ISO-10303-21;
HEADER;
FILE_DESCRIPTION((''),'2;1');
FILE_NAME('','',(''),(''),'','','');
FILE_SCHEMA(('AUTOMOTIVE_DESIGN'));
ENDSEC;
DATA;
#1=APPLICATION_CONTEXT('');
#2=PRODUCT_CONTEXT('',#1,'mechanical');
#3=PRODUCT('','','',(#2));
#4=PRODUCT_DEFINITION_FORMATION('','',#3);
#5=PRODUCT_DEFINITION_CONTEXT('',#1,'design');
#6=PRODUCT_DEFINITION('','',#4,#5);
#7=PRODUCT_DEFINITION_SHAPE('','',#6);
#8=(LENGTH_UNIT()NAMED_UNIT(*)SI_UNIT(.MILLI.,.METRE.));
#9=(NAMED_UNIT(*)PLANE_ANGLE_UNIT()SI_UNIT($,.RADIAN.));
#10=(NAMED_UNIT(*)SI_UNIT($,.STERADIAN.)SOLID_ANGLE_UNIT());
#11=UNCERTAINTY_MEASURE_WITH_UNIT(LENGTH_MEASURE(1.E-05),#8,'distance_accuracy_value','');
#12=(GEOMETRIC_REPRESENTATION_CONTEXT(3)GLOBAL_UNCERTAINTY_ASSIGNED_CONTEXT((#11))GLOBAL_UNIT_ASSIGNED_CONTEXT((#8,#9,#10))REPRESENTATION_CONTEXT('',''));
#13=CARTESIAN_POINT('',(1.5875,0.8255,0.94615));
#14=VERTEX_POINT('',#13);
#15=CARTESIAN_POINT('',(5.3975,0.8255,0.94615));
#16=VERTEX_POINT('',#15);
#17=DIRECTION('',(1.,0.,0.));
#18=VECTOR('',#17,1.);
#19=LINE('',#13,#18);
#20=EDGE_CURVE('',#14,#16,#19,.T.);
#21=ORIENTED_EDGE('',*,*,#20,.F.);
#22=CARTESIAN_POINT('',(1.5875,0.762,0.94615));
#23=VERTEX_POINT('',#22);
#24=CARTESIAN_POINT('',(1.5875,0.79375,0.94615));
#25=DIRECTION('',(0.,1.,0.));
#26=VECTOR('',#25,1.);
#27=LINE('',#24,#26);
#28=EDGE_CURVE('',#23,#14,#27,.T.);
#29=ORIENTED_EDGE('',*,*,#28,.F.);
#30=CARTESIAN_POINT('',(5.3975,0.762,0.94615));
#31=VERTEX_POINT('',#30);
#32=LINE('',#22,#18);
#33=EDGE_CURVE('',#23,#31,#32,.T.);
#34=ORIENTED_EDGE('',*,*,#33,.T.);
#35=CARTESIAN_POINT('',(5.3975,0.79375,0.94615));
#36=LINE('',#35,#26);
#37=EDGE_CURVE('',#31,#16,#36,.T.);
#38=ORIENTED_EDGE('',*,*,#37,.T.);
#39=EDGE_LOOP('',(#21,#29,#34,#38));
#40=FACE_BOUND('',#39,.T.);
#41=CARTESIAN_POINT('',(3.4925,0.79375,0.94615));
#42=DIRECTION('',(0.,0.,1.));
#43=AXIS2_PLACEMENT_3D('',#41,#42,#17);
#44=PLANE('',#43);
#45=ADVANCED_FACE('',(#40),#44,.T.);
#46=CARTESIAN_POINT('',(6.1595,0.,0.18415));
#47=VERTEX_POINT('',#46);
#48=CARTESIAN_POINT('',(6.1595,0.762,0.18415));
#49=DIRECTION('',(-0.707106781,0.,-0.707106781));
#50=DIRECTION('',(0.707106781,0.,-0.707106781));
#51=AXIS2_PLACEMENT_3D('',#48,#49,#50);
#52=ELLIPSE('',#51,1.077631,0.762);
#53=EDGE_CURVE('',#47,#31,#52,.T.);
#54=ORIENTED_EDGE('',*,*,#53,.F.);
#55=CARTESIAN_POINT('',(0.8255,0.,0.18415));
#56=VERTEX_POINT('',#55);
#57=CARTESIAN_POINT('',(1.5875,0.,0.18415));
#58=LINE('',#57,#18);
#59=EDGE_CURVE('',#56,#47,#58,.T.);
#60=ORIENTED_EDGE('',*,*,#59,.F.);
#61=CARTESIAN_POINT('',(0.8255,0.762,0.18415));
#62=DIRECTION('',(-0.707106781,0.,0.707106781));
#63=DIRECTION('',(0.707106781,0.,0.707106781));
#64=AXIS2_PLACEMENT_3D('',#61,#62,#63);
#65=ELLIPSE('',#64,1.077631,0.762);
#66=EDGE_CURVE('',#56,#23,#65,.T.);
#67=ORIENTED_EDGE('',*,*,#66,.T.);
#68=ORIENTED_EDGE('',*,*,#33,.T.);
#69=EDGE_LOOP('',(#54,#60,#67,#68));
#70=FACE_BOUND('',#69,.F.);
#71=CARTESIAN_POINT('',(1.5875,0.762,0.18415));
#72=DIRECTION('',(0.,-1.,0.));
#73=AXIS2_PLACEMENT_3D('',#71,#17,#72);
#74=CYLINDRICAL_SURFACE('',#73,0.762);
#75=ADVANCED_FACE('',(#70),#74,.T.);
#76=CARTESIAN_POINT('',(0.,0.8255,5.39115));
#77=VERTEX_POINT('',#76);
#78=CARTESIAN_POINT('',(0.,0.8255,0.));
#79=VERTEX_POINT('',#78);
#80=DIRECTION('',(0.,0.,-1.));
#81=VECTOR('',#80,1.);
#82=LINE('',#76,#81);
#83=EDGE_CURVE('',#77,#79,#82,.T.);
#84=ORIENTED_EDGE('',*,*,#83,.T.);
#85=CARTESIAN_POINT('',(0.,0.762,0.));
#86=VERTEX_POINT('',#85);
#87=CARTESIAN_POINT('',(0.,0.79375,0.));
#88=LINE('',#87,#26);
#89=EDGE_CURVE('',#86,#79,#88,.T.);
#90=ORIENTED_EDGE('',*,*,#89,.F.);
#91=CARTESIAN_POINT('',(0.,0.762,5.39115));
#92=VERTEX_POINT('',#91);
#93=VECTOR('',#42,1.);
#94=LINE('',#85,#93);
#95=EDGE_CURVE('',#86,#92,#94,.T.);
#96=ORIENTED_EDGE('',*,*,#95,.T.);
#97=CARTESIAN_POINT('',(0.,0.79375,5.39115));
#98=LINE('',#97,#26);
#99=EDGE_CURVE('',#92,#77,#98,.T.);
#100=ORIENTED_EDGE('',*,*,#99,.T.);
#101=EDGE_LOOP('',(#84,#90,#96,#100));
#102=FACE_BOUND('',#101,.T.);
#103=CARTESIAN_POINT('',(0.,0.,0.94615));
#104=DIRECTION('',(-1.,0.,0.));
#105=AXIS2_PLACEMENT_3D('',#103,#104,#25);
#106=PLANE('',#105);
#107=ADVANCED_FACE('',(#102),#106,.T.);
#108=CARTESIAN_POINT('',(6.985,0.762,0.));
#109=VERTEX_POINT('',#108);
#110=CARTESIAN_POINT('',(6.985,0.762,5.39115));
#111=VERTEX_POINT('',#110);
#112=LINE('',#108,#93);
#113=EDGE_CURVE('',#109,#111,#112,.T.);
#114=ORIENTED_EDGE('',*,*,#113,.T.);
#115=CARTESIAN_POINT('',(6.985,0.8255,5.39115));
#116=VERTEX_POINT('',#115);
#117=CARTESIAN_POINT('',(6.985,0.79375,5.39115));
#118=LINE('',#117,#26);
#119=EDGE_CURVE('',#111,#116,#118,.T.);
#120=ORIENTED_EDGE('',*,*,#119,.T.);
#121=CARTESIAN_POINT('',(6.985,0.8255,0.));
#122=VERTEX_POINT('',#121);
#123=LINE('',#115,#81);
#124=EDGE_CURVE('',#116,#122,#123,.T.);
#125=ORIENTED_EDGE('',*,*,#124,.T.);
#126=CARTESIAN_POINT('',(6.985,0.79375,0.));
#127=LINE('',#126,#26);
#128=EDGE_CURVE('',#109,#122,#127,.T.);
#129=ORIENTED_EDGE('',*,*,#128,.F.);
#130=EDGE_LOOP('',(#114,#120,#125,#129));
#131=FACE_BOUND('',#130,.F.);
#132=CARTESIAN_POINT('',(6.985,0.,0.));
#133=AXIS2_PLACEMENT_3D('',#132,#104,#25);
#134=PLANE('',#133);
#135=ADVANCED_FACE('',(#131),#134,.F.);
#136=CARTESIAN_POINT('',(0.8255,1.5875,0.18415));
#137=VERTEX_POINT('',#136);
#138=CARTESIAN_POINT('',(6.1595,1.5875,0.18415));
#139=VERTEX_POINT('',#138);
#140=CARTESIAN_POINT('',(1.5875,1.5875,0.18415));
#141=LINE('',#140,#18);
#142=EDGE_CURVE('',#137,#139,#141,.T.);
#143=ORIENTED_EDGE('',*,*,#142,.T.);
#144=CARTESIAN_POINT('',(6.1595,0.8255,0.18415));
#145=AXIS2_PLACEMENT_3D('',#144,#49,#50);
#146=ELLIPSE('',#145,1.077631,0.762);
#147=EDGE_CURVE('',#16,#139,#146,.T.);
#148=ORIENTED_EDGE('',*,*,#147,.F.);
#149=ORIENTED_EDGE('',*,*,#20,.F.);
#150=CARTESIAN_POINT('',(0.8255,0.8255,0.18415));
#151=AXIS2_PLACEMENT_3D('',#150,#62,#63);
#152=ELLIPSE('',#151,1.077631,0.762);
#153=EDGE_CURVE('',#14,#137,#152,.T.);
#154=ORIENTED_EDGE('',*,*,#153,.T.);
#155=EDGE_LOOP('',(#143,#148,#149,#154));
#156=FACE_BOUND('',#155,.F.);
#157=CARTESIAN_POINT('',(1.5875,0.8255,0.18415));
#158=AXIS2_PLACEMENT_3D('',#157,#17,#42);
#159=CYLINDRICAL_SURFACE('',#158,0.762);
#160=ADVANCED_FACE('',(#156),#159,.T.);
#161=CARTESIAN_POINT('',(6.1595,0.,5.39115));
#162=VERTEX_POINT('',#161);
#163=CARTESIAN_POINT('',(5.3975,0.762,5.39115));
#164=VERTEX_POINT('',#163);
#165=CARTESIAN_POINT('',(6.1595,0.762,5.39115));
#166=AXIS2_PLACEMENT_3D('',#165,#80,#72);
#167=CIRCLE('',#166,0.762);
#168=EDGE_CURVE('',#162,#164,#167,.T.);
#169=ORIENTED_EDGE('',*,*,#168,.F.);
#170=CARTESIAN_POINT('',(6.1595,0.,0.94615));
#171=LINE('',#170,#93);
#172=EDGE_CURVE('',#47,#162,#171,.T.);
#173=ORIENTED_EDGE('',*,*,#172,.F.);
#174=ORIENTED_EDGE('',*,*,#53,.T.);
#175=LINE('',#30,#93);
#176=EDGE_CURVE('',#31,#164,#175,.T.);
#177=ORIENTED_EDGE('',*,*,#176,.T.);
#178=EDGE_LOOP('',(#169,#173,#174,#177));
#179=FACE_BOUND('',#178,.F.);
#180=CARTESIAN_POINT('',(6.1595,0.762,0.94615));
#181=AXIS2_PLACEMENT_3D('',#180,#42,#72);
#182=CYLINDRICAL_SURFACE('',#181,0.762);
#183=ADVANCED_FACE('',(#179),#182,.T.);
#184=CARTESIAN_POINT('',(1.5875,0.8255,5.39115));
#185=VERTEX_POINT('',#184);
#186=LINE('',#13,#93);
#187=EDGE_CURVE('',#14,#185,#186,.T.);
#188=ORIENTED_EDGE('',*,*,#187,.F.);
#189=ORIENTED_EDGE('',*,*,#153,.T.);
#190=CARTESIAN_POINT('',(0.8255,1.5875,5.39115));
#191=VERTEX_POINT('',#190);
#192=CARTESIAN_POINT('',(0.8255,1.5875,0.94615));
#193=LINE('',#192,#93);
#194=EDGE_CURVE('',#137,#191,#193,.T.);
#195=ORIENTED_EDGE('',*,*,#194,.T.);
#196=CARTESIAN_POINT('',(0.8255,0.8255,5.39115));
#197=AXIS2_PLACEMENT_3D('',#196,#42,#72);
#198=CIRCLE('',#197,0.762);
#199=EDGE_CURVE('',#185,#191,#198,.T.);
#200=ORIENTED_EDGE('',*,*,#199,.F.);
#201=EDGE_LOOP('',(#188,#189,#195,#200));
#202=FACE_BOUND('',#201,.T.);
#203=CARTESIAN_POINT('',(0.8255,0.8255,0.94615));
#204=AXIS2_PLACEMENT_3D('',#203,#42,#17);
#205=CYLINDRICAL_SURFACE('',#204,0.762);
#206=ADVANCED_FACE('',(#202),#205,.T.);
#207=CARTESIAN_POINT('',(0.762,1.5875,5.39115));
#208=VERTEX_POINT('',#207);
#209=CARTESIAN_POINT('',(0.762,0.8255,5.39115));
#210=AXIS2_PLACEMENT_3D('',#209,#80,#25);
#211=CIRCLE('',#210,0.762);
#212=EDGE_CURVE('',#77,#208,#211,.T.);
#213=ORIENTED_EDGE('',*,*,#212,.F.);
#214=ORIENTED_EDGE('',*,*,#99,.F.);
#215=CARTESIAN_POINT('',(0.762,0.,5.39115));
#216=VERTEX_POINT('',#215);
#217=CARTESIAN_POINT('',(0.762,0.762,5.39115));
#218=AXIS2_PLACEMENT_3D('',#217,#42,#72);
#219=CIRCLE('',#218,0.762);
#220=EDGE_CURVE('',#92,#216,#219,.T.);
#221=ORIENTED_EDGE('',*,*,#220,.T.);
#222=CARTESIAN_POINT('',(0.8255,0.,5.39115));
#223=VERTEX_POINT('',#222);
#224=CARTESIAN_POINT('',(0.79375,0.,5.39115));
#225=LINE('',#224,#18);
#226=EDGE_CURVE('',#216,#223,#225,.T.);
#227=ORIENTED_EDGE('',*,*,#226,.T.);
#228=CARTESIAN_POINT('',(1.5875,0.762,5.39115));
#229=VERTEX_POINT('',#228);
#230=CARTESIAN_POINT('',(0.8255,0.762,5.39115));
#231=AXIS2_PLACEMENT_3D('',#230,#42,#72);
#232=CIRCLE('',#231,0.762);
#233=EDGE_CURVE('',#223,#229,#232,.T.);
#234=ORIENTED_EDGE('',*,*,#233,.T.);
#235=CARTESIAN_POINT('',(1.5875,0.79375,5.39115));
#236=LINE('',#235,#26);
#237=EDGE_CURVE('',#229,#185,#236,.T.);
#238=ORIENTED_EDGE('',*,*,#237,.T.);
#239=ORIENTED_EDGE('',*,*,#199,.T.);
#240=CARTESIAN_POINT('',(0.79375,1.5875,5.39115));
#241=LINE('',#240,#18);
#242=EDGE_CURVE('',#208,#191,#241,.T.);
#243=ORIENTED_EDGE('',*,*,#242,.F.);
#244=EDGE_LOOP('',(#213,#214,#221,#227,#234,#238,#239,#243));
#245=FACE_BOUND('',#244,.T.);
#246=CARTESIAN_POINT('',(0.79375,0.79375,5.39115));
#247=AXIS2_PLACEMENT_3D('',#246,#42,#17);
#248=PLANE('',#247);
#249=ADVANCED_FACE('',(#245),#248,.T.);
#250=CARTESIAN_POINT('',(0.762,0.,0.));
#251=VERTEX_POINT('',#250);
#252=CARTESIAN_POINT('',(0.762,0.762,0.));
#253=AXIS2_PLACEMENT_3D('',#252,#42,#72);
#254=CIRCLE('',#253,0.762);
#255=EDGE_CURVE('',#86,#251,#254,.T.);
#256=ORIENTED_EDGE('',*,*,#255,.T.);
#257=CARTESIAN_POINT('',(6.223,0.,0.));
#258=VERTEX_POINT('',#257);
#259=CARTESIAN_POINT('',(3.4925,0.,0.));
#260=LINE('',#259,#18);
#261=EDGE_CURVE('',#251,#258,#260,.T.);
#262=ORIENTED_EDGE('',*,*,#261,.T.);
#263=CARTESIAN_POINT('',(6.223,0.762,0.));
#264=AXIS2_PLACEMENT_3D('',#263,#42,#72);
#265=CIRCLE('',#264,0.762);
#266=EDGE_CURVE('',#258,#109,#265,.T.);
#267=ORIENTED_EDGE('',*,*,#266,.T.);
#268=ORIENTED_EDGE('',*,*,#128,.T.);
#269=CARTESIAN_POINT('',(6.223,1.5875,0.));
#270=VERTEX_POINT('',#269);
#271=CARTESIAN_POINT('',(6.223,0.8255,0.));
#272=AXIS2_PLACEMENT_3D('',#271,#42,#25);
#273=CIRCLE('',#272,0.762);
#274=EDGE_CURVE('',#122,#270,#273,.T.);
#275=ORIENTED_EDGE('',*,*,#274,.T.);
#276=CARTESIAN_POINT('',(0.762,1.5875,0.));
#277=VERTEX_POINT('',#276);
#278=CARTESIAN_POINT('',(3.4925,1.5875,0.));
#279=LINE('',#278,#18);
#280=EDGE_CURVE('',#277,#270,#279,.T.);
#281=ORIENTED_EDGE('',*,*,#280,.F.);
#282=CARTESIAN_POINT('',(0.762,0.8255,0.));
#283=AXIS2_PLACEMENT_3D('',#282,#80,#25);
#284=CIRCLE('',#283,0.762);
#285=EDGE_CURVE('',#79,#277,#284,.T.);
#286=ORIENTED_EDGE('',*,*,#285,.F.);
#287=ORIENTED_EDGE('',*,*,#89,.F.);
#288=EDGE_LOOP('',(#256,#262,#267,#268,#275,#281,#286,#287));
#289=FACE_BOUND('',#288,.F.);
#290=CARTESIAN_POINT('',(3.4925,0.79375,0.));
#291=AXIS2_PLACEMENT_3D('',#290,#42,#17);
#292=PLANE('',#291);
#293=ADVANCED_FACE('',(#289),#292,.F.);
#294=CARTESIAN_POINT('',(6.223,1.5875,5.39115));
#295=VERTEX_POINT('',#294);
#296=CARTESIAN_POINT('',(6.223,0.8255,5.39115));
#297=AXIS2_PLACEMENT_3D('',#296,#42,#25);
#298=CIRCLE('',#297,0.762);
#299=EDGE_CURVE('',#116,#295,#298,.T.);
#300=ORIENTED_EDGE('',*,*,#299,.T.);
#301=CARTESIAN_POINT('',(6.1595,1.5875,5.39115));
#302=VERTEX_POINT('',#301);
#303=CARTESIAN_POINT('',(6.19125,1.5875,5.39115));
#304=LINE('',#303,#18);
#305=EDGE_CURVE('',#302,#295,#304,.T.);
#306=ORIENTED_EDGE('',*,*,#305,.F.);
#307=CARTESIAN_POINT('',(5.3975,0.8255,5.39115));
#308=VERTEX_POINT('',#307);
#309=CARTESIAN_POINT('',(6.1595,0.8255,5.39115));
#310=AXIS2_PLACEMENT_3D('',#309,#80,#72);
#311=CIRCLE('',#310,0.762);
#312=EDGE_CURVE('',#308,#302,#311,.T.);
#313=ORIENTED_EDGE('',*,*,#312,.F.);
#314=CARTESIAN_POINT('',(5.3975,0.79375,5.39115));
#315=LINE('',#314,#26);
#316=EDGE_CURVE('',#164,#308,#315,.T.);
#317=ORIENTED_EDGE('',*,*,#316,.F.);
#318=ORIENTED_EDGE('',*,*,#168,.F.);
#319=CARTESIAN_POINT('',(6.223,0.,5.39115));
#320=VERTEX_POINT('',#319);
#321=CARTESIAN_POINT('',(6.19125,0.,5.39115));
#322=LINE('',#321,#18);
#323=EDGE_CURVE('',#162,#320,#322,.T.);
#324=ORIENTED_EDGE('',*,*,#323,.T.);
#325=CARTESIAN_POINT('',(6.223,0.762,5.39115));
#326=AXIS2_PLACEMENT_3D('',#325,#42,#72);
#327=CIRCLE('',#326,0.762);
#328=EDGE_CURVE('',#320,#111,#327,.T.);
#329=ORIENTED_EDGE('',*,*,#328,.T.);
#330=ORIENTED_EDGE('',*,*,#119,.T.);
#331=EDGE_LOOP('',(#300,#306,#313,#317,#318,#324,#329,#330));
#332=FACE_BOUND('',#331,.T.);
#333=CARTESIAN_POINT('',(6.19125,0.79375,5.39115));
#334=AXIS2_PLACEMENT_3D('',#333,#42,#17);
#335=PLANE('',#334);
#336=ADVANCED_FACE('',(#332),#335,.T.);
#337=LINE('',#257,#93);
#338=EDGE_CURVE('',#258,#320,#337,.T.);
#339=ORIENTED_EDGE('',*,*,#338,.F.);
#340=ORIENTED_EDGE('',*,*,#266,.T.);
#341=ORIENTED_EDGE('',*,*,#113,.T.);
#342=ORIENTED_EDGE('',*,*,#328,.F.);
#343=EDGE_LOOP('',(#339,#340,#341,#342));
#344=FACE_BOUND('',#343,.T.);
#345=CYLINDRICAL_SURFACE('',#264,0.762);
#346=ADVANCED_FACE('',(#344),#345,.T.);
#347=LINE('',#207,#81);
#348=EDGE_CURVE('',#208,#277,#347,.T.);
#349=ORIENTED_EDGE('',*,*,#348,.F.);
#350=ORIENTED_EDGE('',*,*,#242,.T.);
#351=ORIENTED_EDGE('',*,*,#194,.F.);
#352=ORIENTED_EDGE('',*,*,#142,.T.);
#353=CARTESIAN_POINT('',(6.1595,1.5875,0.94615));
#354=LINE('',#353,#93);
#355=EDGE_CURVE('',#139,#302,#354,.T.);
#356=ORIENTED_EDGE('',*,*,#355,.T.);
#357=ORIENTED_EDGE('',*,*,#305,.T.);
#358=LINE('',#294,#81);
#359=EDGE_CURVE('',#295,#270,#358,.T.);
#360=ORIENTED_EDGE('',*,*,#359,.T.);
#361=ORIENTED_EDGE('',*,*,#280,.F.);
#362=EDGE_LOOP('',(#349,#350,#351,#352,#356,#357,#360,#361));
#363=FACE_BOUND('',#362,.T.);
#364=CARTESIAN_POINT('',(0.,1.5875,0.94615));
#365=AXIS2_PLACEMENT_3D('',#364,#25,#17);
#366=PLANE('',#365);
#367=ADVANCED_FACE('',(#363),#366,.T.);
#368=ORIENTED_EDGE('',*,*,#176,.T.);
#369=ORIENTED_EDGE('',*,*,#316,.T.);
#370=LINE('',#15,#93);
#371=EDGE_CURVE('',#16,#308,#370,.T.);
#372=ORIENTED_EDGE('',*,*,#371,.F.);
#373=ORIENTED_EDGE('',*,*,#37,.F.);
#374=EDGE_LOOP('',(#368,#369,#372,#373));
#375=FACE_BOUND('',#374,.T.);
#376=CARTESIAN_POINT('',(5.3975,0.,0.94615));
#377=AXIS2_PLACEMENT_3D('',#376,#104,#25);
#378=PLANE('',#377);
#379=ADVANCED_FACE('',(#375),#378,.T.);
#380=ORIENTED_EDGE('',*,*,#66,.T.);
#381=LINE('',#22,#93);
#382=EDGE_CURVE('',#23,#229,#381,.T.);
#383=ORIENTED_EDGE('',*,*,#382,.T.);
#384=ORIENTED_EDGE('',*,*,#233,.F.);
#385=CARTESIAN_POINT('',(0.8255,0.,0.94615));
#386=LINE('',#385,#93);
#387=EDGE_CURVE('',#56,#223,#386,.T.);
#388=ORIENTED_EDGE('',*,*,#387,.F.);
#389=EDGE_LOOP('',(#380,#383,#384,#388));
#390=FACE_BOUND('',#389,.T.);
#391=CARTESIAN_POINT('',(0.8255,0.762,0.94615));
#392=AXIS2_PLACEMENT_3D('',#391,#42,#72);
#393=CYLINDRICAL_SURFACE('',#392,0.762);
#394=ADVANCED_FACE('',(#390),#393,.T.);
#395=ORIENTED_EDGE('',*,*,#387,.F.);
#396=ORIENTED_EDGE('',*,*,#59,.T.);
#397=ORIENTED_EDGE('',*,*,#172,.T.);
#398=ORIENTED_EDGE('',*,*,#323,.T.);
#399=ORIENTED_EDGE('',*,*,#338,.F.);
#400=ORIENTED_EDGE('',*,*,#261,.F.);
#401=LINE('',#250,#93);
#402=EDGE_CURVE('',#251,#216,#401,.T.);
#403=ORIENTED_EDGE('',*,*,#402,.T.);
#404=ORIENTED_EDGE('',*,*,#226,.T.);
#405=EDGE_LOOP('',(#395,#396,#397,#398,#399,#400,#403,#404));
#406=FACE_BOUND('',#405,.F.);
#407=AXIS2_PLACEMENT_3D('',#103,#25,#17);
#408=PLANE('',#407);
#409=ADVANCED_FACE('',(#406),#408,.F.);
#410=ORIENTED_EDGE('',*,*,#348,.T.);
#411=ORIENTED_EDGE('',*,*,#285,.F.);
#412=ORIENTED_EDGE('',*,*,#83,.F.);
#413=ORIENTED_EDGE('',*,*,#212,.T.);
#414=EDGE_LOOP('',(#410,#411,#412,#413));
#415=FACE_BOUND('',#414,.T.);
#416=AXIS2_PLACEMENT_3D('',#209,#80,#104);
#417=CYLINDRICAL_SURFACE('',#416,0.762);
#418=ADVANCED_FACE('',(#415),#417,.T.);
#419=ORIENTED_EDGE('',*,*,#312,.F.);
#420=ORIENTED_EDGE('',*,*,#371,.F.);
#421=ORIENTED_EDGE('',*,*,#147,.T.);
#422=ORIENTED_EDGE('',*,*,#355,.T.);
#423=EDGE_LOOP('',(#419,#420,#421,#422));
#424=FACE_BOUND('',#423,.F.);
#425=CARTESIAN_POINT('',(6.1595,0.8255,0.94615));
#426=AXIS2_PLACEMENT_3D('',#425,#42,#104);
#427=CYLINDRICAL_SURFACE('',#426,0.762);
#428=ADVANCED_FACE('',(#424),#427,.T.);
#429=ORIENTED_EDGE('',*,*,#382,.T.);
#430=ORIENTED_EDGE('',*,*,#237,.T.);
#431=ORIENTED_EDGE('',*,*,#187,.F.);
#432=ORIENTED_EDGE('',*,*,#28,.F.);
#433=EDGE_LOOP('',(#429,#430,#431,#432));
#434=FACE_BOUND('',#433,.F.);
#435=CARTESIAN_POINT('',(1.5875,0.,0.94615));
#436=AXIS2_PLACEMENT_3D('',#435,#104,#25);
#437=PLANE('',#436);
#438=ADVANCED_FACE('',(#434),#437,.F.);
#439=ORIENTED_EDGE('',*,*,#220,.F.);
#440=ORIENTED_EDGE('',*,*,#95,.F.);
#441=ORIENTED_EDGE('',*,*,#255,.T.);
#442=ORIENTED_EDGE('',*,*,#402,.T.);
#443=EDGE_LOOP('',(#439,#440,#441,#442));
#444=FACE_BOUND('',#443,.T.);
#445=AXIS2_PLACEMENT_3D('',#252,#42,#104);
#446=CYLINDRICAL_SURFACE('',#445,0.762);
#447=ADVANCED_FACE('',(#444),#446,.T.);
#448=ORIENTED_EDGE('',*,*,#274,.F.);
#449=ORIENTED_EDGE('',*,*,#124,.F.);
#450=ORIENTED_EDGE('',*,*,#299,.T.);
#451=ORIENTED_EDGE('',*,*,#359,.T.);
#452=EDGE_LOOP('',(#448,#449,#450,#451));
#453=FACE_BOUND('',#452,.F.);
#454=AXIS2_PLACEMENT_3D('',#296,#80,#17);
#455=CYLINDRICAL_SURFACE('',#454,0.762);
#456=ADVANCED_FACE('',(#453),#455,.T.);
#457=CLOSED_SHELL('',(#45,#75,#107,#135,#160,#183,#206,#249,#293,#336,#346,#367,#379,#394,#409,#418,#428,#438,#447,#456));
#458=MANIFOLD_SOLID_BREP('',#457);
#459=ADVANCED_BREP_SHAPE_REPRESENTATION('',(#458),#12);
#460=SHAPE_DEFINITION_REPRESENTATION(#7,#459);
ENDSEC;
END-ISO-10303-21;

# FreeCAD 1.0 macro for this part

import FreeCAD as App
import Part
import Sketcher

V = App.Vector
Q = App.Units.Quantity


def edges_at(feature, points):
    """Names of the edges that pass closest to the given points."""
    edges = feature.Shape.Edges
    near = lambda p: min(range(len(edges)), key=lambda i: edges[i].distToShape(Part.Vertex(*p))[0])
    return sorted({f"Edge{near(p) + 1}" for p in points})

doc = App.newDocument("Part")
body = doc.addObject("PartDesign::Body", "Body")

# Sketch on XY plane
sketch1 = body.newObject("Sketcher::SketchObject", "Sketch")
sketch1.AttachmentSupport = (doc.getObject("XY_Plane"), [""])
sketch1.MapMode = "FlatFace"
sketch1.addGeometry(Part.LineSegment(V(0, 1.5875, 0), V(0, 0, 0)), False)
sketch1.addGeometry(Part.LineSegment(V(0, 0, 0), V(6.985, 0, 0)), False)
sketch1.addGeometry(Part.LineSegment(V(6.985, 0, 0), V(6.985, 1.5875, 0)), False)
sketch1.addGeometry(Part.LineSegment(V(6.985, 1.5875, 0), V(0, 1.5875, 0)), False)
sketch1.addConstraint(Sketcher.Constraint("Coincident", 0, 2, 1, 1))
sketch1.addConstraint(Sketcher.Constraint("Coincident", 1, 2, 2, 1))
sketch1.addConstraint(Sketcher.Constraint("Coincident", 2, 2, 3, 1))
sketch1.addConstraint(Sketcher.Constraint("Coincident", 3, 2, 0, 1))
sketch1.addConstraint(Sketcher.Constraint("Vertical", 0))
sketch1.addConstraint(Sketcher.Constraint("Horizontal", 1))
sketch1.addConstraint(Sketcher.Constraint("Vertical", 2))
sketch1.addConstraint(Sketcher.Constraint("Horizontal", 3))
sketch1.addConstraint(Sketcher.Constraint("Coincident", 0, 2, -1, 1))
sketch1.addConstraint(Sketcher.Constraint("DistanceX", 1, 1, 1, 2, Q("0.275 in")))
sketch1.addConstraint(Sketcher.Constraint("DistanceY", 0, 2, 0, 1, Q("0.0625 in")))
pad1 = body.newObject("PartDesign::Pad", "Pad")
pad1.Profile = sketch1
pad1.Length = 0.94615

# Sketch on XY plane
sketch2 = body.newObject("Sketcher::SketchObject", "Sketch001")
sketch2.AttachmentSupport = (doc.getObject("XY_Plane"), [""])
sketch2.MapMode = "FlatFace"
sketch2.AttachmentOffset = App.Placement(V(0, 0, 0.94615), App.Rotation())
sketch2.addGeometry(Part.LineSegment(V(0, 1.5875, 0), V(0, 0, 0)), False)
sketch2.addGeometry(Part.LineSegment(V(0, 0, 0), V(1.5875, 0, 0)), False)
sketch2.addGeometry(Part.LineSegment(V(1.5875, 0, 0), V(1.5875, 1.5875, 0)), False)
sketch2.addGeometry(Part.LineSegment(V(1.5875, 1.5875, 0), V(0, 1.5875, 0)), False)
sketch2.addGeometry(Part.LineSegment(V(5.3975, 1.5875, 0), V(5.3975, 0, 0)), False)
sketch2.addGeometry(Part.LineSegment(V(5.3975, 0, 0), V(6.985, 0, 0)), False)
sketch2.addGeometry(Part.LineSegment(V(6.985, 0, 0), V(6.985, 1.5875, 0)), False)
sketch2.addGeometry(Part.LineSegment(V(6.985, 1.5875, 0), V(5.3975, 1.5875, 0)), False)
sketch2.addConstraint(Sketcher.Constraint("Coincident", 0, 2, 1, 1))
sketch2.addConstraint(Sketcher.Constraint("Coincident", 1, 2, 2, 1))
sketch2.addConstraint(Sketcher.Constraint("Coincident", 2, 2, 3, 1))
sketch2.addConstraint(Sketcher.Constraint("Coincident", 3, 2, 0, 1))
sketch2.addConstraint(Sketcher.Constraint("Coincident", 4, 2, 5, 1))
sketch2.addConstraint(Sketcher.Constraint("Coincident", 5, 2, 6, 1))
sketch2.addConstraint(Sketcher.Constraint("Coincident", 6, 2, 7, 1))
sketch2.addConstraint(Sketcher.Constraint("Coincident", 7, 2, 4, 1))
sketch2.addConstraint(Sketcher.Constraint("Vertical", 0))
sketch2.addConstraint(Sketcher.Constraint("Horizontal", 1))
sketch2.addConstraint(Sketcher.Constraint("Vertical", 2))
sketch2.addConstraint(Sketcher.Constraint("Horizontal", 3))
sketch2.addConstraint(Sketcher.Constraint("Vertical", 4))
sketch2.addConstraint(Sketcher.Constraint("Horizontal", 5))
sketch2.addConstraint(Sketcher.Constraint("Vertical", 6))
sketch2.addConstraint(Sketcher.Constraint("Horizontal", 7))
sketch2.addConstraint(Sketcher.Constraint("Coincident", 0, 2, -1, 1))
sketch2.addConstraint(Sketcher.Constraint("PointOnObject", 4, 2, -1))
sketch2.addConstraint(Sketcher.Constraint("Horizontal", 3, 2, 6, 2))
sketch2.addConstraint(Sketcher.Constraint("Equal", 3, 5))
sketch2.addConstraint(Sketcher.Constraint("Equal", 7, 0))
sketch2.addConstraint(Sketcher.Constraint("DistanceX", 1, 1, 1, 2, Q("0.0625 in")))
sketch2.addConstraint(Sketcher.Constraint("DistanceX", 1, 2, 4, 2, Q("0.15 in")))
pad2 = body.newObject("PartDesign::Pad", "Pad001")
pad2.Profile = sketch2
pad2.Length = Q("0.175 in")
doc.recompute()

fillet = body.newObject("PartDesign::Fillet", "Fillet")
fillet.Base = (pad2, edges_at(pad2, [
    (0, 0, 2.696),
    (1.587, 0, 3.169),
    (3.493, 0, 0.946),
    (5.397, 0, 3.169),
    (6.985, 0, 2.696),
    (0, 1.587, 2.696),
    (1.587, 1.587, 3.169),
    (3.493, 1.587, 0.946),
    (5.397, 1.587, 3.169),
    (6.985, 1.587, 2.696),
]))
fillet.Radius = Q("0.03 in")

doc.recompute()
